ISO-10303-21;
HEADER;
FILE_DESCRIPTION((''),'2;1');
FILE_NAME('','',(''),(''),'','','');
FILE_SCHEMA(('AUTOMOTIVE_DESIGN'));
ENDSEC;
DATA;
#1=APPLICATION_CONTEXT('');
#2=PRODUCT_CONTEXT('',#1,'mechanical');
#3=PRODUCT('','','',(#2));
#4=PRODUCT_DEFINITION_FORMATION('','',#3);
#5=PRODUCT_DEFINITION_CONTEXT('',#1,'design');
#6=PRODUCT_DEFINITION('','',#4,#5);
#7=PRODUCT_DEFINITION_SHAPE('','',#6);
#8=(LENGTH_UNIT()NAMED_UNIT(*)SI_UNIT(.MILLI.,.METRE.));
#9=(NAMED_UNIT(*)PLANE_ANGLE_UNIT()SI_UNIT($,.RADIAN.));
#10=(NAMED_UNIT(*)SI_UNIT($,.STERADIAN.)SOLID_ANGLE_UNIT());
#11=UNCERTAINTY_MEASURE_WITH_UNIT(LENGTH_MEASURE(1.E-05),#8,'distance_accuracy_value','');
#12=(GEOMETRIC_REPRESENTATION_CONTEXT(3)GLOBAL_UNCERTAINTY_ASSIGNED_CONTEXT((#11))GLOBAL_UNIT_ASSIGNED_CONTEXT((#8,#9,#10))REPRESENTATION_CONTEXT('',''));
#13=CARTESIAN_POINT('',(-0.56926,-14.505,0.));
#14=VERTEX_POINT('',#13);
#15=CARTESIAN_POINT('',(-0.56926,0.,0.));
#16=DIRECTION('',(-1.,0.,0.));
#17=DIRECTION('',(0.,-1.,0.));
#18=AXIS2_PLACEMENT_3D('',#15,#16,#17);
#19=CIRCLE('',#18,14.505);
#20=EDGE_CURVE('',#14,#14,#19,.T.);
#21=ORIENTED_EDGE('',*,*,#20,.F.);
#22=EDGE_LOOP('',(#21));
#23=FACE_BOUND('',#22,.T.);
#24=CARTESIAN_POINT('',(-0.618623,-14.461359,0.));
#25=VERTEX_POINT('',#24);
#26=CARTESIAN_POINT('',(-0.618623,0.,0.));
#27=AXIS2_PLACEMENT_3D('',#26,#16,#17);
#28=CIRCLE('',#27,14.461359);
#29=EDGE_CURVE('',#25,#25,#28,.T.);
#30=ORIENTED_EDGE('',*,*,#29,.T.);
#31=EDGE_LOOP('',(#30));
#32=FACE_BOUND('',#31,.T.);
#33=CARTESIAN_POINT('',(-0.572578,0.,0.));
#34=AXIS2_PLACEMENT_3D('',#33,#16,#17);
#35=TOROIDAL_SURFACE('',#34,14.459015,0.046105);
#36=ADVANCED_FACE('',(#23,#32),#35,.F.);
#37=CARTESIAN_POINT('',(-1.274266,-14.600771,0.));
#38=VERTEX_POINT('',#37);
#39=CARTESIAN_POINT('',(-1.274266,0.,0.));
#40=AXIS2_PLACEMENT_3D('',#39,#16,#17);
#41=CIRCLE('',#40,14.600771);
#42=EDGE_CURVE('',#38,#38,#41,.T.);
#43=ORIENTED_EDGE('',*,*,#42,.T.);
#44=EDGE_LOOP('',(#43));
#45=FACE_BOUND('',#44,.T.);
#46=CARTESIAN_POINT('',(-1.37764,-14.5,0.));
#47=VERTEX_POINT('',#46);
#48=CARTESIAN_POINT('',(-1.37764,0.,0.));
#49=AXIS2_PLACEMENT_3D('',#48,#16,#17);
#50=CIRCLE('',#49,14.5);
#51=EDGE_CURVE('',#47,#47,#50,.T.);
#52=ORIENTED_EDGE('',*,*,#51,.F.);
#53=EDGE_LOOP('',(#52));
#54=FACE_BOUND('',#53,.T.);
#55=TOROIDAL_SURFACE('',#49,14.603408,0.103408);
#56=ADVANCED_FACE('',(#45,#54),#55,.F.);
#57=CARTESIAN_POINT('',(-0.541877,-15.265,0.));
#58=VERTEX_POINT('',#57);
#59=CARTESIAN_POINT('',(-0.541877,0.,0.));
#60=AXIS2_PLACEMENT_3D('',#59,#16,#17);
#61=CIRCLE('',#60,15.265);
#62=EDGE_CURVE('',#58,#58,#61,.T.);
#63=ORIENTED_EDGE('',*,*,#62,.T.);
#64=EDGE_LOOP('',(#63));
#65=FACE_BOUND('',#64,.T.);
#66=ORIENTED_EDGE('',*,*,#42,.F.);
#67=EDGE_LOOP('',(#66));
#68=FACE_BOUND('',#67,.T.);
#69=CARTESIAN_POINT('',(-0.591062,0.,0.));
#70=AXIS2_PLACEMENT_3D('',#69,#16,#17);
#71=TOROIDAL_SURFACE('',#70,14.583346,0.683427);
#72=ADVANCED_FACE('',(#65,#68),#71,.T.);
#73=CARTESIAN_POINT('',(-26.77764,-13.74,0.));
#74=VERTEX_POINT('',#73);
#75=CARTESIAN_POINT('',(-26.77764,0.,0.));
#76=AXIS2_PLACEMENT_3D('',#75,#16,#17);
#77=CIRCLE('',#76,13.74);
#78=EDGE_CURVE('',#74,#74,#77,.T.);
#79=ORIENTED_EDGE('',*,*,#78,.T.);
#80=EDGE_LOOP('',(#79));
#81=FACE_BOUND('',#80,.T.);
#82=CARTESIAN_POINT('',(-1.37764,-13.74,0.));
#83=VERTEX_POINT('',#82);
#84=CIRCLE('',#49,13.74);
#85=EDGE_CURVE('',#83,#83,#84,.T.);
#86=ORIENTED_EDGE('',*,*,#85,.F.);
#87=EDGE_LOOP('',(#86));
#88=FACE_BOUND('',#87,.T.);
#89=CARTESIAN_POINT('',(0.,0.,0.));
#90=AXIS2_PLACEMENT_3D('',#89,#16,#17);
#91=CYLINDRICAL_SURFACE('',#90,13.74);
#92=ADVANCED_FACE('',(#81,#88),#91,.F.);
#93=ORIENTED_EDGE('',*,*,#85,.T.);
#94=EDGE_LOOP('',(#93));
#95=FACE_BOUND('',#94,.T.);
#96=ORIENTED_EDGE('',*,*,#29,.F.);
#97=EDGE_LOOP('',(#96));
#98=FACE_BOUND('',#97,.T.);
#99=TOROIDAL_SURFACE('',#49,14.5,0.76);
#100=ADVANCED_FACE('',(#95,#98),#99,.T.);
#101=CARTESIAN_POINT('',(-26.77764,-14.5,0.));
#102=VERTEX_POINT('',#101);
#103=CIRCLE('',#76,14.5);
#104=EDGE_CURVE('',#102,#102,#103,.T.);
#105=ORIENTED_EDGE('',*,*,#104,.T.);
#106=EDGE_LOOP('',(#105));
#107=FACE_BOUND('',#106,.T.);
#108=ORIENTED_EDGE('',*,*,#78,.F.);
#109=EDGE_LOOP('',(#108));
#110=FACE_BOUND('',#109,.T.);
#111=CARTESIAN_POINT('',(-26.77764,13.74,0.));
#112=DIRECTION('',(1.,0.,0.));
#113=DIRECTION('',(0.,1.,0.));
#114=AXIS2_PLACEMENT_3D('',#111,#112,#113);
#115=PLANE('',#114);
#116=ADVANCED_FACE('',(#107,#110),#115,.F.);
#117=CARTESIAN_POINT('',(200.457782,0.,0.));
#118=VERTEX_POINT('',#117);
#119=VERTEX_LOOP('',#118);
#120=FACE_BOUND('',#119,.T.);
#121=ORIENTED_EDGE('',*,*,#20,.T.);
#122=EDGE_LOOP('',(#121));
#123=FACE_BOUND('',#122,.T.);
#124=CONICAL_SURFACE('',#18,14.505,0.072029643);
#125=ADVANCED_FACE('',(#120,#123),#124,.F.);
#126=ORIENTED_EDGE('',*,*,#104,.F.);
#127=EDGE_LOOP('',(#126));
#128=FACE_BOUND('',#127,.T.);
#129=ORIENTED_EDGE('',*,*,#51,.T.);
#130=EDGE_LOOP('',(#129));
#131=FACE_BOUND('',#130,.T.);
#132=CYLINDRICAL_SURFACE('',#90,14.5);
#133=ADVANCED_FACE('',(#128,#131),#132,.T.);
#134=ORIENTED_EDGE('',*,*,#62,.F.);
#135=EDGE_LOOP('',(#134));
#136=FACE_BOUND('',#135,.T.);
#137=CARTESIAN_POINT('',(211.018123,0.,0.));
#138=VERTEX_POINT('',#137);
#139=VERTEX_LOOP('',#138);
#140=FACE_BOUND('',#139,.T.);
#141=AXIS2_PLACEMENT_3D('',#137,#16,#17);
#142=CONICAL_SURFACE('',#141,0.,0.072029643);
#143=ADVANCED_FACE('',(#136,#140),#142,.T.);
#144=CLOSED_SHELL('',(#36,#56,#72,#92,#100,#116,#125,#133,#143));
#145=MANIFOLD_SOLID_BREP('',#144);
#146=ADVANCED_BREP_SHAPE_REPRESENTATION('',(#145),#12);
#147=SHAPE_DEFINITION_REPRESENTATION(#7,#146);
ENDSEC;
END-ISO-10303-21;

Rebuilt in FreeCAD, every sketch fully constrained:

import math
import FreeCAD as App
import Part
import Sketcher

V = App.Vector
Q = App.Units.Quantity

doc = App.newDocument("Part")
body = doc.addObject("PartDesign::Body", "Body")

# Sketch on XY plane
sketch1 = body.newObject("Sketcher::SketchObject", "Sketch")
sketch1.AttachmentSupport = (doc.getObject("XY_Plane"), [""])
sketch1.MapMode = "FlatFace"
sketch1.addGeometry(Part.LineSegment(V(-1.378, 14.5, 0), V(-26.778, 14.5, 0)), False)
sketch1.addGeometry(Part.LineSegment(V(-26.778, 14.5, 0), V(-26.778, 13.74, 0)), False)
sketch1.addGeometry(Part.LineSegment(V(-26.778, 13.74, 0), V(-1.378, 13.74, 0)), False)
sketch1.addGeometry(Part.ArcOfCircle(Part.Circle(V(-1.378, 14.5, 0), V(0, 0, 1), 0.76), math.radians(-90), math.radians(-3)), False)
sketch1.addGeometry(Part.ArcOfCircle(Part.Circle(V(-0.573, 14.459, 0), V(0, 0, 1), 0.046), math.radians(86), math.radians(177)), False)
sketch1.addGeometry(Part.LineSegment(V(-0.569, 14.505, 0), V(200.458, 0, 0)), False)
sketch1.addGeometry(Part.LineSegment(V(200.458, 0, 0), V(211.018, 0, 0)), False)
sketch1.addGeometry(Part.LineSegment(V(211.018, 0, 0), V(-0.542, 15.265, 0)), False)
sketch1.addGeometry(Part.ArcOfCircle(Part.Circle(V(-0.591, 14.583, 0), V(0, 0, 1), 0.683), math.radians(86), math.radians(179)), False)
sketch1.addGeometry(Part.ArcOfCircle(Part.Circle(V(-1.378, 14.603, 0), V(0, 0, 1), 0.103), math.radians(-90), math.radians(-1)), False)
sketch1.addConstraint(Sketcher.Constraint("Coincident", 0, 2, 1, 1))
sketch1.addConstraint(Sketcher.Constraint("Coincident", 1, 2, 2, 1))
sketch1.addConstraint(Sketcher.Constraint("Tangent", 2, 2, 3, 1))
sketch1.addConstraint(Sketcher.Constraint("Tangent", 3, 2, 4, 2))
sketch1.addConstraint(Sketcher.Constraint("Tangent", 4, 1, 5, 1))
sketch1.addConstraint(Sketcher.Constraint("Coincident", 5, 2, 6, 1))
sketch1.addConstraint(Sketcher.Constraint("Coincident", 6, 2, 7, 1))
sketch1.addConstraint(Sketcher.Constraint("Tangent", 7, 2, 8, 1))
sketch1.addConstraint(Sketcher.Constraint("Tangent", 8, 2, 9, 2))
sketch1.addConstraint(Sketcher.Constraint("Tangent", 9, 1, 0, 1))
sketch1.addConstraint(Sketcher.Constraint("Horizontal", 0))
sketch1.addConstraint(Sketcher.Constraint("Vertical", 1))
sketch1.addConstraint(Sketcher.Constraint("Horizontal", 2))
sketch1.addConstraint(Sketcher.Constraint("Horizontal", 6))
sketch1.addConstraint(Sketcher.Constraint("Coincident", 9, 1, 3, 3))
sketch1.addConstraint(Sketcher.Constraint("PointOnObject", 5, 2, -1))
sketch1.addConstraint(Sketcher.Constraint("Parallel", 5, 7))
sketch1.addConstraint(Sketcher.Constraint("DistanceX", 0, 2, 0, 1, Q("1 in")))
sketch1.addConstraint(Sketcher.Constraint("Radius", 3, 0.76))
sketch1.addConstraint(Sketcher.Constraint("Radius", 9, 0.103408))
sketch1.addConstraint(Sketcher.Constraint("DistanceX", -1, 1, 6, 2, Q("8.3078001 in")))
sketch1.addConstraint(Sketcher.Constraint("Radius", 4, 0.046105))
sketch1.addConstraint(Sketcher.Constraint("Radius", 8, 0.683427))
sketch1.addConstraint(Sketcher.Constraint("DistanceY", 2, 2, 3, 2, Q("0.0284 in")))
sketch1.addConstraint(Sketcher.Constraint("DistanceX", 6, 1, 6, 2, 10.560341))
sketch1.addConstraint(Sketcher.Constraint("DistanceY", -1, 1, 3, 3, 14.5))
sketch1.addConstraint(Sketcher.Constraint("DistanceX", 4, 3, 6, 2, 211.590701))
revolution = body.newObject("PartDesign::Revolution", "Revolution")
revolution.Profile = sketch1
revolution.ReferenceAxis = (sketch1, ["H_Axis"])
revolution.Angle = 360

doc.recompute()
